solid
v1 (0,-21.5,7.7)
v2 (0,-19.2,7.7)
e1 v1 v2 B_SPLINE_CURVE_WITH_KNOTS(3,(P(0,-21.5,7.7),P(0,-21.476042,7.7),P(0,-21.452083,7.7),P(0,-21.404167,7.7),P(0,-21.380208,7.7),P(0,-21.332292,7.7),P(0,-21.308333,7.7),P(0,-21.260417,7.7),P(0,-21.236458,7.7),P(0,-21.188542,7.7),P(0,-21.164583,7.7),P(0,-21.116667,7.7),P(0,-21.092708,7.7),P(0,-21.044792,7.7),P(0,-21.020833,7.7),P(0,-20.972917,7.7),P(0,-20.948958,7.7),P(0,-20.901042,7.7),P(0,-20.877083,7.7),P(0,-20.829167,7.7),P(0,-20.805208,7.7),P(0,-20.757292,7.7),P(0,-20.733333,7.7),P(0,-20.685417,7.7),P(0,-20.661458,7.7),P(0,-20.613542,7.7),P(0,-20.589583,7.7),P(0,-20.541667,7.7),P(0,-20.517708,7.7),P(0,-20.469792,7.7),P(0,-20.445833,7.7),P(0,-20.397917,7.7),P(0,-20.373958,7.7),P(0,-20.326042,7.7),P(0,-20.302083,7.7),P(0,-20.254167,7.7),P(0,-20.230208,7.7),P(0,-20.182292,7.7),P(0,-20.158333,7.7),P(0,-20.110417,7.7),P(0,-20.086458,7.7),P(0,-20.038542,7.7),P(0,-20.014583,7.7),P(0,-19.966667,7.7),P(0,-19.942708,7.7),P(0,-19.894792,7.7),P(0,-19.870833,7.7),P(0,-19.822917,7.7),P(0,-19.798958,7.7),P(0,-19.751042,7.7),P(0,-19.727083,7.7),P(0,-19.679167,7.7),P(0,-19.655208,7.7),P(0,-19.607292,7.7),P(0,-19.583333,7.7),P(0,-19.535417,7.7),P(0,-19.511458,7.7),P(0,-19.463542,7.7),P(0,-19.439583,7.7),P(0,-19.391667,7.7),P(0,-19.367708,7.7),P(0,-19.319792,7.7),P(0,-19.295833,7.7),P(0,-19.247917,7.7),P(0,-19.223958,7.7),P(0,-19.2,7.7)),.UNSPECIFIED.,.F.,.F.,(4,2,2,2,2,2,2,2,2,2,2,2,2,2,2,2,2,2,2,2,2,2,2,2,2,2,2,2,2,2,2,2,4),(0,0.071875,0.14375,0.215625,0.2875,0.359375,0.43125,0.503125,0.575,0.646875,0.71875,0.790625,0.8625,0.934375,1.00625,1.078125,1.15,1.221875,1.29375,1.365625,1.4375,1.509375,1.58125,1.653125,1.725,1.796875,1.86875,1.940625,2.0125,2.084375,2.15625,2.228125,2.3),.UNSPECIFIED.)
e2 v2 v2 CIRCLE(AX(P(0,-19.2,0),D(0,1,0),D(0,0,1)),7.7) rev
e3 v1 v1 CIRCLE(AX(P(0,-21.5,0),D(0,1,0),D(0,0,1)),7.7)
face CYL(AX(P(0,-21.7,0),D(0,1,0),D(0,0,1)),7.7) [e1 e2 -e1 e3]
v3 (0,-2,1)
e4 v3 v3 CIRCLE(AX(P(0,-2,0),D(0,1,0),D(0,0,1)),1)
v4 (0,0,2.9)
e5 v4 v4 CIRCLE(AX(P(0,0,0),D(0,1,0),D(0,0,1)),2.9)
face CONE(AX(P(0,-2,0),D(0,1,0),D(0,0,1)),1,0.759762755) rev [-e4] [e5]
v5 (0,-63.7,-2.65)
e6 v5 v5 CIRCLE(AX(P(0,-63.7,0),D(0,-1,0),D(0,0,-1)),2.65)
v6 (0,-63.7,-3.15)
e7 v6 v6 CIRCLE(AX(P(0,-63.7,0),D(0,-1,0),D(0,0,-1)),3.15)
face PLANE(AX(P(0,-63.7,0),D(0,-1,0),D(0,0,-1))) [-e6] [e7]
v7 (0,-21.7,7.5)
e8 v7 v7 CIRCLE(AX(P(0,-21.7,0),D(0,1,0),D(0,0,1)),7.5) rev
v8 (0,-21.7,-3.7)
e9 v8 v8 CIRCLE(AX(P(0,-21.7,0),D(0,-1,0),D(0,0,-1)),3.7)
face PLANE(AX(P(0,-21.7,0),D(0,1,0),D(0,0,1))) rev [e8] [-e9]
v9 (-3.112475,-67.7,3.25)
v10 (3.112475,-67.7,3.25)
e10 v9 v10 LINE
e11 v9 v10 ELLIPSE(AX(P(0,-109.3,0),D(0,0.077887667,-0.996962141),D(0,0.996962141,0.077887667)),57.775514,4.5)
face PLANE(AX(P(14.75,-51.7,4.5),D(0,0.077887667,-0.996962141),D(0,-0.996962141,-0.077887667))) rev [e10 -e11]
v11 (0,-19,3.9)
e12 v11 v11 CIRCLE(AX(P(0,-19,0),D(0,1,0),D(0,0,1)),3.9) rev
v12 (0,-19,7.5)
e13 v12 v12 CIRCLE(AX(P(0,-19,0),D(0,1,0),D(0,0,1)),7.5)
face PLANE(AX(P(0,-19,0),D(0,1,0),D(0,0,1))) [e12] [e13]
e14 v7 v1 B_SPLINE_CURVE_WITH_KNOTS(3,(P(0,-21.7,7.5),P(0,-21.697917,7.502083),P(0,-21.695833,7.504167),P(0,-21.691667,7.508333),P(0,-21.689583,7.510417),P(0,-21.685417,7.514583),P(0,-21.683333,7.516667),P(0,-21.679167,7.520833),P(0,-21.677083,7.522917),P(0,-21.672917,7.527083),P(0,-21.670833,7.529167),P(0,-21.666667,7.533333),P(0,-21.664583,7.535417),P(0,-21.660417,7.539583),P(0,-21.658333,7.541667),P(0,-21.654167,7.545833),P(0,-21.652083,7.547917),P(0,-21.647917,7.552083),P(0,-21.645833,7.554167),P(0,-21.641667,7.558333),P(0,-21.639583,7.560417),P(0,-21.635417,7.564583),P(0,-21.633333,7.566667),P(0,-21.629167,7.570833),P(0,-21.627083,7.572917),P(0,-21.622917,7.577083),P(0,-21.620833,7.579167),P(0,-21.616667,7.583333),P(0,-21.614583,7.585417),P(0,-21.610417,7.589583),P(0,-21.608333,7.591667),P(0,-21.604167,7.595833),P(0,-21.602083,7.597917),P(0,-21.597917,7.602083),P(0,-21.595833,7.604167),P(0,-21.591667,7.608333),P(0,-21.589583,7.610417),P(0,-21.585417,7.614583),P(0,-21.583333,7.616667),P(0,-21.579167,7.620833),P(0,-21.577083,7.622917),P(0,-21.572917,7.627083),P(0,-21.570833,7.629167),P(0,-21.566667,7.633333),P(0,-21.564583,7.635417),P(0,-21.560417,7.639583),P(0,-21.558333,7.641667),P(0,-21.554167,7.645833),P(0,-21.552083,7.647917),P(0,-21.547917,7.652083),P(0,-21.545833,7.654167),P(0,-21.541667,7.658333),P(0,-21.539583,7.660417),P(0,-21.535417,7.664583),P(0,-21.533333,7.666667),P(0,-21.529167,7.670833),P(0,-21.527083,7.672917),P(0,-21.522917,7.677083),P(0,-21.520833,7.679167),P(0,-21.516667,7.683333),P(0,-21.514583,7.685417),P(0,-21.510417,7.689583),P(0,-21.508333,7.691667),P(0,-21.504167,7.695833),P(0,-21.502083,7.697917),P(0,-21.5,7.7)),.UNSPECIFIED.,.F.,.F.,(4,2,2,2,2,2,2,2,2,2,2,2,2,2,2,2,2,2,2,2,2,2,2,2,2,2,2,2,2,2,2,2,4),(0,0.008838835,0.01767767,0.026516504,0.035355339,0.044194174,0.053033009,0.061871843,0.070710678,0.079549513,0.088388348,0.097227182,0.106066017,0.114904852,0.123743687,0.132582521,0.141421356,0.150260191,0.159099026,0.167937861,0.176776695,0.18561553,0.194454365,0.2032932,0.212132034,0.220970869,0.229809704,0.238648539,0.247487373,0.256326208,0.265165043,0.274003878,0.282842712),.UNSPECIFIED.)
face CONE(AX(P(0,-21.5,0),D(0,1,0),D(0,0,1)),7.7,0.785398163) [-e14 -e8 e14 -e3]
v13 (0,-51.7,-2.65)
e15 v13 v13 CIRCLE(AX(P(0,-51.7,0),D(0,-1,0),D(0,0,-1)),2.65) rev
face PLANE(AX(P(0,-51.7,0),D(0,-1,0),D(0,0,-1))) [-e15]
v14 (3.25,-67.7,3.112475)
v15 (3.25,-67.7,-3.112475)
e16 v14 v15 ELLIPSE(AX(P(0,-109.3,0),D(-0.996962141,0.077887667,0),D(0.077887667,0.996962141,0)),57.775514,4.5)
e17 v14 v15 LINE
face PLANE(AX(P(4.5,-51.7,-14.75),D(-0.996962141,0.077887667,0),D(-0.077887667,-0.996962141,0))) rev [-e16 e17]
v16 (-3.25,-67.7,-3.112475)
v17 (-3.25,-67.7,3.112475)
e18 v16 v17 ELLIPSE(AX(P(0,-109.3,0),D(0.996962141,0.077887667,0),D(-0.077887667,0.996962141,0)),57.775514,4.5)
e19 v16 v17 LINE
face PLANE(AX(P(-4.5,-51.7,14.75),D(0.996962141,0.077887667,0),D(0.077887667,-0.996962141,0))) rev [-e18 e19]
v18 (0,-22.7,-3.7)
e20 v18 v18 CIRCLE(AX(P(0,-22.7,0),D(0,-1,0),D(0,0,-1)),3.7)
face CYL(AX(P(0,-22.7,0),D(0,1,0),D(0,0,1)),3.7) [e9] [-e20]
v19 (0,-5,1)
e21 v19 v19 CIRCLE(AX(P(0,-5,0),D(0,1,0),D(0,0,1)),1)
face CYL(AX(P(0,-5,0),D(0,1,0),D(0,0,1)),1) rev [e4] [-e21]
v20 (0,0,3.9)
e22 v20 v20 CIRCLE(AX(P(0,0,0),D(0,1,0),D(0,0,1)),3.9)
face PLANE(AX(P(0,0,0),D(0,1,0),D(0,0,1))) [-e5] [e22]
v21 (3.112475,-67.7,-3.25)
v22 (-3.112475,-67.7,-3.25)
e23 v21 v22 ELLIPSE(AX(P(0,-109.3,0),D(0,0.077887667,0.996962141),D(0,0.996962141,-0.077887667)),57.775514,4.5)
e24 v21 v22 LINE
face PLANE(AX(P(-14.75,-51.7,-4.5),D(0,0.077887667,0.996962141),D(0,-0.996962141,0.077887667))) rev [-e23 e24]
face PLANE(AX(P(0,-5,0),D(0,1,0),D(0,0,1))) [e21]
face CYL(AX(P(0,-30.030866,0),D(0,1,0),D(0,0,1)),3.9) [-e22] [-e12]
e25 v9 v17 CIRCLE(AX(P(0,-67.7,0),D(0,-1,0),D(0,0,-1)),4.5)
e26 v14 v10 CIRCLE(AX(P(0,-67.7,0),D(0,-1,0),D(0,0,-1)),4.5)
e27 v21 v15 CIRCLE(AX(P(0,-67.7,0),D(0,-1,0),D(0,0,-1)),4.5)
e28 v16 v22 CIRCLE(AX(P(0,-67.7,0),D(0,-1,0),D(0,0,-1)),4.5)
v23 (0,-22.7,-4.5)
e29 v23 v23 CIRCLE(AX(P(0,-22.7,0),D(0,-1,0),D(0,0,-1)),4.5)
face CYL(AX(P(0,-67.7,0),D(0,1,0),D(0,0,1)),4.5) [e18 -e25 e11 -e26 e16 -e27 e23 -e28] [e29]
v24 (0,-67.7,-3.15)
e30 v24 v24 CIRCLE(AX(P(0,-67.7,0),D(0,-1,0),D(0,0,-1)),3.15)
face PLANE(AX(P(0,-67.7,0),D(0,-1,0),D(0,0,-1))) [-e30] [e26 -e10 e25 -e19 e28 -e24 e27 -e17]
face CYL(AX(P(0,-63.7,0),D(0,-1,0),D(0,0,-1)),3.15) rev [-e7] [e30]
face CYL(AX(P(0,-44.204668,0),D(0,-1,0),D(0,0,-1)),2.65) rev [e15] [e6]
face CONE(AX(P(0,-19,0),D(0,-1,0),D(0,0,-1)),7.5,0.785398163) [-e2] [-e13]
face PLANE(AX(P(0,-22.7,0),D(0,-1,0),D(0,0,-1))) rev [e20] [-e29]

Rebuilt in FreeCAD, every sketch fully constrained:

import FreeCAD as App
import Part
import Sketcher
from FreeCAD import Vector


def edges_at(feature, points):
    """Names of the edges that pass closest to the given points."""
    edges = feature.Shape.Edges
    near = lambda p: min(range(len(edges)), key=lambda i: edges[i].distToShape(Part.Vertex(*p))[0])
    return sorted({f"Edge{near(p) + 1}" for p in points})

doc = App.newDocument("Part")
body = doc.addObject("PartDesign::Body", "Body")

sketch1 = body.newObject("Sketcher::SketchObject", "Sketch")
sketch1.AttachmentSupport = (doc.getObject("XZ_Plane"), [""])
sketch1.MapMode = "FlatFace"
sketch1.addGeometry(Part.Circle(Vector(0, 0, 0), Vector(0, 0, 1), 3.9), False)
sketch1.addConstraint(Sketcher.Constraint("Coincident", 0, 3, -1, 1))
sketch1.addConstraint(Sketcher.Constraint("Diameter", 0, 7.8))
pad1 = body.newObject("PartDesign::Pad", "Pad")
pad1.Profile = sketch1
pad1.Length = 19

sketch2 = body.newObject("Sketcher::SketchObject", "Sketch001")
sketch2.AttachmentSupport = (doc.getObject("XZ_Plane"), [""])
sketch2.MapMode = "FlatFace"
sketch2.AttachmentOffset = App.Placement(Vector(0, 0, 19), App.Rotation())
sketch2.addGeometry(Part.Circle(Vector(0, 0, 0), Vector(0, 0, 1), 8), False)
sketch2.addConstraint(Sketcher.Constraint("Coincident", 0, 3, -1, 1))
sketch2.addConstraint(Sketcher.Constraint("Diameter", 0, 15.4))
pad2 = body.newObject("PartDesign::Pad", "Pad001")
pad2.Profile = sketch2
pad2.Length = 2.7

sketch3 = body.newObject("Sketcher::SketchObject", "Sketch002")
sketch3.AttachmentSupport = (doc.getObject("XZ_Plane"), [""])
sketch3.MapMode = "FlatFace"
sketch3.AttachmentOffset = App.Placement(Vector(0, 0, 21.7), App.Rotation())
sketch3.addGeometry(Part.Circle(Vector(0, 0, 0), Vector(0, 0, 1), 3.7), False)
sketch3.addConstraint(Sketcher.Constraint("Coincident", 0, 3, -1, 1))
sketch3.addConstraint(Sketcher.Constraint("Diameter", 0, 7.4))
pad3 = body.newObject("PartDesign::Pad", "Pad002")
pad3.Profile = sketch3
pad3.Length = 1

sketch4 = body.newObject("Sketcher::SketchObject", "Sketch003")
sketch4.AttachmentSupport = (doc.getObject("XZ_Plane"), [""])
sketch4.MapMode = "FlatFace"
sketch4.AttachmentOffset = App.Placement(Vector(0, 0, 22.7), App.Rotation())
sketch4.addGeometry(Part.Circle(Vector(0, 0, 0), Vector(0, 0, 1), 4.5), False)
sketch4.addConstraint(Sketcher.Constraint("Coincident", 0, 3, -1, 1))
sketch4.addConstraint(Sketcher.Constraint("Diameter", 0, 9.0))
pad4 = body.newObject("PartDesign::Pad", "Pad003")
pad4.Profile = sketch4
pad4.Length = 45

sketch5 = body.newObject("Sketcher::SketchObject", "Sketch004")
sketch5.AttachmentSupport = (doc.getObject("XY_Plane"), [""])
sketch5.MapMode = "FlatFace"
sketch5.addGeometry(Part.LineSegment(Vector(4.5, -51.7, 0), Vector(3.2, -67.7, 0)), False)
sketch5.addGeometry(Part.LineSegment(Vector(3.2, -67.7, 0), Vector(4.5, -67.7, 0)), False)
sketch5.addGeometry(Part.LineSegment(Vector(4.5, -67.7, 0), Vector(4.5, -51.7, 0)), False)
sketch5.addConstraint(Sketcher.Constraint("Coincident", 0, 2, 1, 1))
sketch5.addConstraint(Sketcher.Constraint("Coincident", 1, 2, 2, 1))
sketch5.addConstraint(Sketcher.Constraint("Coincident", 2, 2, 0, 1))
sketch5.addConstraint(Sketcher.Constraint("Horizontal", 1))
sketch5.addConstraint(Sketcher.Constraint("Vertical", 2))
sketch5.addConstraint(Sketcher.Constraint("DistanceY", 2, 1, 2, 2, 16.0))
sketch5.addConstraint(Sketcher.Constraint("DistanceX", 1, 1, 1, 2, 1.25))
sketch5.addConstraint(Sketcher.Constraint("DistanceY", 0, 2, -1, 1, 67.7))
sketch5.addConstraint(Sketcher.Constraint("DistanceX", -1, 1, 1, 2, 4.5))
pocket1 = body.newObject("PartDesign::Pocket", "Pocket")
pocket1.Profile = sketch5
pocket1.Length = 29.5
pocket1.Midplane = True
doc.recompute()

polarpattern = body.newObject("PartDesign::PolarPattern", "PolarPattern")
polarpattern.Originals = [pocket1]
polarpattern.Axis = (doc.getObject("Y_Axis"), [""])
polarpattern.Angle = 360
polarpattern.Occurrences = 4
body.Tip = polarpattern

sketch6 = body.newObject("Sketcher::SketchObject", "Sketch005")
sketch6.AttachmentSupport = (doc.getObject("XZ_Plane"), [""])
sketch6.MapMode = "FlatFace"
sketch6.AttachmentOffset = App.Placement(Vector(0, 0, 67.7), App.Rotation())
sketch6.addGeometry(Part.Circle(Vector(0, 0, 0), Vector(0, 0, 1), 3.1), False)
sketch6.addConstraint(Sketcher.Constraint("Coincident", 0, 3, -1, 1))
sketch6.addConstraint(Sketcher.Constraint("Diameter", 0, 6.3))
pocket2 = body.newObject("PartDesign::Pocket", "Pocket001")
pocket2.Profile = sketch6
pocket2.Length = 4

sketch7 = body.newObject("Sketcher::SketchObject", "Sketch006")
sketch7.AttachmentSupport = (doc.getObject("XZ_Plane"), [""])
sketch7.MapMode = "FlatFace"
sketch7.AttachmentOffset = App.Placement(Vector(0, 0, 51.7), App.Rotation())
sketch7.addGeometry(Part.Circle(Vector(0, 0, 0), Vector(0, 0, 1), 2.6), False)
sketch7.addConstraint(Sketcher.Constraint("Coincident", 0, 3, -1, 1))
sketch7.addConstraint(Sketcher.Constraint("Diameter", 0, 5.3))
pocket3 = body.newObject("PartDesign::Pocket", "Pocket002")
pocket3.Profile = sketch7
pocket3.Length = 12
pocket3.Reversed = True

sketch8 = body.newObject("Sketcher::SketchObject", "Sketch007")
sketch8.AttachmentSupport = (doc.getObject("XZ_Plane"), [""])
sketch8.MapMode = "FlatFace"
sketch8.AttachmentOffset = App.Placement(Vector(0, 0, 2), App.Rotation())
sketch8.addGeometry(Part.Circle(Vector(0, 0, 0), Vector(0, 0, 1), 1), False)
sketch8.addConstraint(Sketcher.Constraint("Coincident", 0, 3, -1, 1))
sketch8.addConstraint(Sketcher.Constraint("Diameter", 0, 2.0))

sketch9 = body.newObject("Sketcher::SketchObject", "Sketch008")
sketch9.AttachmentSupport = (doc.getObject("XZ_Plane"), [""])
sketch9.MapMode = "FlatFace"
sketch9.addGeometry(Part.Circle(Vector(0, 0, 0), Vector(0, 0, 1), 2.9), False)
sketch9.addConstraint(Sketcher.Constraint("Coincident", 0, 3, -1, 1))
sketch9.addConstraint(Sketcher.Constraint("Diameter", 0, 5.8))

subtractiveloft = body.newObject("PartDesign::SubtractiveLoft", "SubtractiveLoft")
subtractiveloft.Profile = sketch8
subtractiveloft.Sections = [sketch9]

sketch10 = body.newObject("Sketcher::SketchObject", "Sketch009")
sketch10.AttachmentSupport = (doc.getObject("XZ_Plane"), [""])
sketch10.MapMode = "FlatFace"
sketch10.AttachmentOffset = App.Placement(Vector(0, 0, 2), App.Rotation())
sketch10.addGeometry(Part.Circle(Vector(0, 0, 0), Vector(0, 0, 1), 1), False)
sketch10.addConstraint(Sketcher.Constraint("Coincident", 0, 3, -1, 1))
sketch10.addConstraint(Sketcher.Constraint("Diameter", 0, 2.0))
pocket4 = body.newObject("PartDesign::Pocket", "Pocket003")
pocket4.Profile = sketch10
pocket4.Length = 3
pocket4.Reversed = True
doc.recompute()

chamfer = body.newObject("PartDesign::Chamfer", "Chamfer")
chamfer.Base = (pocket4, edges_at(pocket4, [(0, -21.7, -7.7), (0, -19, -7.7)]))
chamfer.Size = 0.2

doc.recompute()
